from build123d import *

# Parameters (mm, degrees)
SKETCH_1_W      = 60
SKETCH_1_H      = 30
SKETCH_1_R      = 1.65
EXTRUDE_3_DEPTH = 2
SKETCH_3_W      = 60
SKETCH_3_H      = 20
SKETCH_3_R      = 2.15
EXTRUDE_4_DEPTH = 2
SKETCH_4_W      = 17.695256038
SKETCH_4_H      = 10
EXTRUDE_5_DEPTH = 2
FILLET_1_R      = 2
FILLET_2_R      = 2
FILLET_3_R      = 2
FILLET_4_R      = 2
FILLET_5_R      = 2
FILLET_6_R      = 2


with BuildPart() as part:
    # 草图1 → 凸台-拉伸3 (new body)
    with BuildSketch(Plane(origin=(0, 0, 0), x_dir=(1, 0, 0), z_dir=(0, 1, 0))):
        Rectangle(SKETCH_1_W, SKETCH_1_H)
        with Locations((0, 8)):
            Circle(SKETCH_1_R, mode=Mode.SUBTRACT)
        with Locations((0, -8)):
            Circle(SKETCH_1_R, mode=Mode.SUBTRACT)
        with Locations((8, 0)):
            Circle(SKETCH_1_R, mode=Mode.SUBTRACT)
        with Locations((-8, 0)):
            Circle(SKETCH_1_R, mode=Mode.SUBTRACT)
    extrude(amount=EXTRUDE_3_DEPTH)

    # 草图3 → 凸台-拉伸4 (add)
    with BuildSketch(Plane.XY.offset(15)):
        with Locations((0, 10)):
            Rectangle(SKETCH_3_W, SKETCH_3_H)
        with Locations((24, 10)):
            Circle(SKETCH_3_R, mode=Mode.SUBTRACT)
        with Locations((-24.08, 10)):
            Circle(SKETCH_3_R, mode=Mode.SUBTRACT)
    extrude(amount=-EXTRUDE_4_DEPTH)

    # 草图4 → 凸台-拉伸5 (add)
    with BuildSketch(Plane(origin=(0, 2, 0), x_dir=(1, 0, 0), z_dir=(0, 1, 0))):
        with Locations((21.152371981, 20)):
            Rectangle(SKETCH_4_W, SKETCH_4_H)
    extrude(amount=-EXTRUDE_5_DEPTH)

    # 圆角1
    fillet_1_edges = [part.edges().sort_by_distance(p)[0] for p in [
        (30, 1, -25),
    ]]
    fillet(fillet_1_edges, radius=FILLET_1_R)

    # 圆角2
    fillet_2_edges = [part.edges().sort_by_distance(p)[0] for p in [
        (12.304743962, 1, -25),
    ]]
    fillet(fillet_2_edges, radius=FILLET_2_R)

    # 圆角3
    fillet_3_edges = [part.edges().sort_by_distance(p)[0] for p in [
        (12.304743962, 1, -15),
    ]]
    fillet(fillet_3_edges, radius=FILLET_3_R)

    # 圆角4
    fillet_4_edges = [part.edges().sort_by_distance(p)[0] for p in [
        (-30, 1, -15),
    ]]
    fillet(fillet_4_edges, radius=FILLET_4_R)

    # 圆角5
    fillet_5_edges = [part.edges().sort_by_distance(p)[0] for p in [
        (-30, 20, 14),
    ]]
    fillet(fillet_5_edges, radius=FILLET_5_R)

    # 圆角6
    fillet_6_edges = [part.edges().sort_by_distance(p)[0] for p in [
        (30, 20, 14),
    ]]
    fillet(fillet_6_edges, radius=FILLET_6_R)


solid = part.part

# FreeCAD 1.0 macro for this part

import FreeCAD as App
import Part
import Sketcher
from FreeCAD import Vector


def edges_at(feature, points):
    """Names of the edges that pass closest to the given points."""
    edges = feature.Shape.Edges
    near = lambda p: min(range(len(edges)), key=lambda i: edges[i].distToShape(Part.Vertex(*p))[0])
    return sorted({f"Edge{near(p) + 1}" for p in points})

doc = App.newDocument("Part")
params = doc.addObject("Spreadsheet::Sheet", "Params")
for row, (alias, value) in enumerate([
    ("sketch1_diameter", "3.3 mm"),
    ("sketch1_width", "60 mm"),
    ("sketch1_height", "30 mm"),
    ("pad1_length", "2 mm"),
    ("sketch2_diameter", "4.3 mm"),
    ("sketch2_width", "60 mm"),
    ("sketch2_height", "20 mm"),
    ("pad2_length", "2 mm"),
    ("sketch3_height", "10 mm"),
    ("pad3_length", "2 mm"),
    ("fillet_radius", "2 mm"),
    ("fillet2_radius", "2 mm"),
    ("fillet3_radius", "2 mm"),
    ("fillet4_radius", "2 mm"),
    ("fillet5_radius", "2 mm"),
    ("fillet6_radius", "2 mm"),
], start=1):
    params.set(f"A{row}", alias)
    params.set(f"B{row}", "=" + value)
    params.setAlias(f"B{row}", alias)

body = doc.addObject("PartDesign::Body", "Body")

sketch1 = body.newObject("Sketcher::SketchObject", "Sketch")
sketch1.AttachmentSupport = (doc.getObject("XZ_Plane"), [""])
sketch1.MapMode = "FlatFace"
sketch1.addGeometry([
    Part.LineSegment(Vector(-30, -15, 0), Vector(-30, 15, 0)),
    Part.LineSegment(Vector(-30, 15, 0), Vector(30, 15, 0)),
    Part.LineSegment(Vector(30, 15, 0), Vector(30, -15, 0)),
    Part.LineSegment(Vector(30, -15, 0), Vector(-30, -15, 0)),
    Part.Circle(Vector(0, 8, 0), Vector(0, 0, 1), 1.6),
    Part.Circle(Vector(-8, 0, 0), Vector(0, 0, 1), 1.6),
    Part.Circle(Vector(8, 0, 0), Vector(0, 0, 1), 1.6),
    Part.Circle(Vector(0, -8, 0), Vector(0, 0, 1), 1.6),
], False)
sketch1.addConstraint([
    Sketcher.Constraint("Coincident", 0, 2, 1, 1),
    Sketcher.Constraint("Coincident", 1, 2, 2, 1),
    Sketcher.Constraint("Coincident", 2, 2, 3, 1),
    Sketcher.Constraint("Coincident", 3, 2, 0, 1),
    Sketcher.Constraint("Vertical", 0),
    Sketcher.Constraint("Horizontal", 1),
    Sketcher.Constraint("Vertical", 2),
    Sketcher.Constraint("Horizontal", 3),
    Sketcher.Constraint("Equal", 4, 5),
    Sketcher.Constraint("Equal", 5, 6),
    Sketcher.Constraint("Equal", 6, 7),
    Sketcher.Constraint("Symmetric", 5, 3, 6, 3, -1, 1),
    Sketcher.Constraint("Symmetric", 4, 3, 7, 3, -1, 1),
    Sketcher.Constraint("Symmetric", 0, 2, 2, 2, -1, 1),
    Sketcher.Constraint("PointOnObject", 4, 3, -2),
    Sketcher.Constraint("PointOnObject", 5, 3, -1),
    Sketcher.Constraint("Diameter", 4, 3.3),
    Sketcher.Constraint("DistanceX", 1, 1, 1, 2, 60.0),
    Sketcher.Constraint("DistanceY", 0, 1, 0, 2, 30.0),
    Sketcher.Constraint("DistanceY", -1, 1, 4, 3, 8.0),
    Sketcher.Constraint("DistanceX", 5, 3, -1, 1, 8.0),
])
sketch1.setExpression("Constraints[16]", "Params.sketch1_diameter")
sketch1.setExpression("Constraints[17]", "Params.sketch1_width")
sketch1.setExpression("Constraints[18]", "Params.sketch1_height")
pad1 = body.newObject("PartDesign::Pad", "Pad")
pad1.Profile = sketch1
pad1.setExpression("Length", "Params.pad1_length")
pad1.Reversed = True

sketch2 = body.newObject("Sketcher::SketchObject", "Sketch001")
sketch2.AttachmentSupport = (doc.getObject("XY_Plane"), [""])
sketch2.MapMode = "FlatFace"
sketch2.AttachmentOffset = App.Placement(Vector(0, 0, 15), App.Rotation())
sketch2.addGeometry([
    Part.LineSegment(Vector(-30, 20, 0), Vector(-30, 0, 0)),
    Part.LineSegment(Vector(-30, 0, 0), Vector(30, 0, 0)),
    Part.LineSegment(Vector(30, 0, 0), Vector(30, 20, 0)),
    Part.LineSegment(Vector(30, 20, 0), Vector(-30, 20, 0)),
    Part.Circle(Vector(-24.1, 10, 0), Vector(0, 0, 1), 2.1),
    Part.Circle(Vector(24, 10, 0), Vector(0, 0, 1), 2.1),
], False)
sketch2.addConstraint([
    Sketcher.Constraint("Coincident", 0, 2, 1, 1),
    Sketcher.Constraint("Coincident", 1, 2, 2, 1),
    Sketcher.Constraint("Coincident", 2, 2, 3, 1),
    Sketcher.Constraint("Coincident", 3, 2, 0, 1),
    Sketcher.Constraint("Vertical", 0),
    Sketcher.Constraint("Horizontal", 1),
    Sketcher.Constraint("Vertical", 2),
    Sketcher.Constraint("Horizontal", 3),
    Sketcher.Constraint("Equal", 4, 5),
    Sketcher.Constraint("Symmetric", 0, 2, 1, 2, -1, 1),
    Sketcher.Constraint("Horizontal", 4, 3, 5, 3),
    Sketcher.Constraint("Diameter", 4, 4.3),
    Sketcher.Constraint("DistanceX", 1, 1, 1, 2, 60.0),
    Sketcher.Constraint("DistanceY", 0, 2, 0, 1, 20.0),
    Sketcher.Constraint("DistanceY", -1, 1, 4, 3, 10.0),
    Sketcher.Constraint("DistanceX", -1, 1, 5, 3, 24.0),
    Sketcher.Constraint("DistanceX", 4, 3, -1, 1, 24.08),
])
sketch2.setExpression("Constraints[11]", "Params.sketch2_diameter")
sketch2.setExpression("Constraints[12]", "Params.sketch2_width")
sketch2.setExpression("Constraints[13]", "Params.sketch2_height")
pad2 = body.newObject("PartDesign::Pad", "Pad001")
pad2.Profile = sketch2
pad2.setExpression("Length", "Params.pad2_length")
pad2.Reversed = True

sketch3 = body.newObject("Sketcher::SketchObject", "Sketch002")
sketch3.AttachmentSupport = (doc.getObject("XZ_Plane"), [""])
sketch3.MapMode = "FlatFace"
sketch3.AttachmentOffset = App.Placement(Vector(0, 0, -2), App.Rotation())
sketch3.addGeometry([
    Part.LineSegment(Vector(12, -25, 0), Vector(12, -15, 0)),
    Part.LineSegment(Vector(12, -15, 0), Vector(30, -15, 0)),
    Part.LineSegment(Vector(30, -15, 0), Vector(30, -25, 0)),
    Part.LineSegment(Vector(30, -25, 0), Vector(12, -25, 0)),
], False)
sketch3.addConstraint([
    Sketcher.Constraint("Coincident", 0, 2, 1, 1),
    Sketcher.Constraint("Coincident", 1, 2, 2, 1),
    Sketcher.Constraint("Coincident", 2, 2, 3, 1),
    Sketcher.Constraint("Coincident", 3, 2, 0, 1),
    Sketcher.Constraint("Vertical", 0),
    Sketcher.Constraint("Horizontal", 1),
    Sketcher.Constraint("Vertical", 2),
    Sketcher.Constraint("Horizontal", 3),
    Sketcher.Constraint("DistanceY", 0, 1, 0, 2, 10.0),
    Sketcher.Constraint("DistanceY", 0, 2, -1, 1, 15.0),
    Sketcher.Constraint("DistanceX", -1, 1, 1, 2, 30.0),
    Sketcher.Constraint("DistanceX", 1, 1, 1, 2, 17.695256),
])
sketch3.setExpression("Constraints[8]", "Params.sketch3_height")
pad3 = body.newObject("PartDesign::Pad", "Pad002")
pad3.Profile = sketch3
pad3.setExpression("Length", "Params.pad3_length")
doc.recompute()

fillet = body.newObject("PartDesign::Fillet", "Fillet")
fillet.Base = (pad3, edges_at(pad3, [(30, 1, -25)]))
fillet.setExpression("Radius", "Params.fillet_radius")
doc.recompute()

fillet2 = body.newObject("PartDesign::Fillet", "Fillet001")
fillet2.Base = (fillet, edges_at(fillet, [(12.305, 1, -25)]))
fillet2.setExpression("Radius", "Params.fillet2_radius")
doc.recompute()

fillet3 = body.newObject("PartDesign::Fillet", "Fillet002")
fillet3.Base = (fillet2, edges_at(fillet2, [(12.305, 1, -15)]))
fillet3.setExpression("Radius", "Params.fillet3_radius")
doc.recompute()

fillet4 = body.newObject("PartDesign::Fillet", "Fillet003")
fillet4.Base = (fillet3, edges_at(fillet3, [(-30, 1, -15)]))
fillet4.setExpression("Radius", "Params.fillet4_radius")
doc.recompute()

fillet5 = body.newObject("PartDesign::Fillet", "Fillet004")
fillet5.Base = (fillet4, edges_at(fillet4, [(-30, 20, 14)]))
fillet5.setExpression("Radius", "Params.fillet5_radius")
doc.recompute()

fillet6 = body.newObject("PartDesign::Fillet", "Fillet005")
fillet6.Base = (fillet5, edges_at(fillet5, [(30, 20, 14)]))
fillet6.setExpression("Radius", "Params.fillet6_radius")

doc.recompute()
